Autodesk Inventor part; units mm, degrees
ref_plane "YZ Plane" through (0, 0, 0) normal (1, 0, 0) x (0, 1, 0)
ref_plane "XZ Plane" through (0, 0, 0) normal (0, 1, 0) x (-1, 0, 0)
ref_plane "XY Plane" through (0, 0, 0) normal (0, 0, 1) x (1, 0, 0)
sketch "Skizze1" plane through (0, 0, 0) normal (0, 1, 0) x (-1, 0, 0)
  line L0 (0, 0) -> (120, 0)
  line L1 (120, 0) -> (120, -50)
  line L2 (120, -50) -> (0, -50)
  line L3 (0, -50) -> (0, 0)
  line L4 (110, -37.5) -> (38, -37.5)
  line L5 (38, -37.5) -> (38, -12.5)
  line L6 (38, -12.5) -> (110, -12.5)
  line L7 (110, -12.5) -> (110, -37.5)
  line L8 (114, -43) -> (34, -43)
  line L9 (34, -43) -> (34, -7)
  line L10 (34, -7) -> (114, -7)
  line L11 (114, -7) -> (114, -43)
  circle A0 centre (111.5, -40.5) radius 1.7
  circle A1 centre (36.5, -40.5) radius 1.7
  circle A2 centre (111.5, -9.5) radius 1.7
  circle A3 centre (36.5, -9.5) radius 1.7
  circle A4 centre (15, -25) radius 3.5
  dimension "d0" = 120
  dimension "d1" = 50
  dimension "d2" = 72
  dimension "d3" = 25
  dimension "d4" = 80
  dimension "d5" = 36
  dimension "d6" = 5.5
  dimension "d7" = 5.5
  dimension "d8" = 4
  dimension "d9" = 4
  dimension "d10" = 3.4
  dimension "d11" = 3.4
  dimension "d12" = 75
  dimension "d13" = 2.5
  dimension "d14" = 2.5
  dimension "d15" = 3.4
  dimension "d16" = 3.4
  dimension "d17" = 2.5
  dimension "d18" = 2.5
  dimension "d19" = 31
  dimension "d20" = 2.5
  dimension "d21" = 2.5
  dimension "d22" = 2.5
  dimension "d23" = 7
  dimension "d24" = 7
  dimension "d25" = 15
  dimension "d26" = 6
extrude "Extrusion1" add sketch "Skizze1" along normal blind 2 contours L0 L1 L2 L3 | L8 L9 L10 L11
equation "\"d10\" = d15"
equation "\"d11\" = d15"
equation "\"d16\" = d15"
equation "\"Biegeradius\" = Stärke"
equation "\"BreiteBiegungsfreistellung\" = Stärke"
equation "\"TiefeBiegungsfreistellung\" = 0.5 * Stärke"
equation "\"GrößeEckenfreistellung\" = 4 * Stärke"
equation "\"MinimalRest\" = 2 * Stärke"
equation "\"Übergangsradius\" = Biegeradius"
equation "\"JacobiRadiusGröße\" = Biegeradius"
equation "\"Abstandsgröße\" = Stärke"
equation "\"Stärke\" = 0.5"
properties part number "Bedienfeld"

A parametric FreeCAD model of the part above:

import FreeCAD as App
import Part
import Sketcher

V = App.Vector
Q = App.Units.Quantity


def add_polygon(sketch, points):
    """Adds a closed chain of lines whose ends are joined by coincident constraints."""
    first, n = sketch.GeometryCount, len(points)
    for a, b in zip(points, points[1:] + points[:1]):
        sketch.addGeometry(Part.LineSegment(App.Vector(*a, 0), App.Vector(*b, 0)), False)
    for i in range(n):
        sketch.addConstraint(Sketcher.Constraint("Coincident", first + i, 2, first + (i + 1) % n, 1))

doc = App.newDocument("Part")
body = doc.addObject("PartDesign::Body", "Body")

# Sketch on XZ plane
sketch1 = doc.addObject("Sketcher::SketchObject", "Sketch")
body.addObject(sketch1)
sketch1.AttachmentSupport = (doc.XZ_Plane, [""])
sketch1.MapMode = "FlatFace"
add_polygon(sketch1, [(-120, 0), (0, 0), (0, -50), (-120, -50)])  # lines 0-3
sketch1.addGeometry(Part.Circle(V(-15, -25, 0), V(0, 0, 1), 3.5), False)  # 4
add_polygon(sketch1, [(-38, -12.5), (-110, -12.5), (-110, -37.5), (-38, -37.5)])  # lines 5-8
sketch1.addGeometry(Part.Circle(V(-111.5, -9.5, 0), V(0, 0, 1), 1.7), False)  # 9
sketch1.addGeometry(Part.Circle(V(-36.5, -40.5, 0), V(0, 0, 1), 1.7), False)  # 10
sketch1.addGeometry(Part.Circle(V(-111.5, -40.5, 0), V(0, 0, 1), 1.7), False)  # 11
sketch1.addGeometry(Part.Circle(V(-36.5, -9.5, 0), V(0, 0, 1), 1.7), False)  # 12
sketch1.addConstraint([
    Sketcher.Constraint("Horizontal", 0),
    Sketcher.Constraint("Vertical", 1),
    Sketcher.Constraint("Horizontal", 2),
    Sketcher.Constraint("Vertical", 3),
    Sketcher.Constraint("Horizontal", 5),
    Sketcher.Constraint("Vertical", 6),
    Sketcher.Constraint("Horizontal", 7),
    Sketcher.Constraint("Vertical", 8),
    Sketcher.Constraint("Coincident", 0, 2, -1, 1),
    Sketcher.Constraint("Equal", 9, 10),
    Sketcher.Constraint("Equal", 10, 11),
    Sketcher.Constraint("Equal", 11, 12),
    Sketcher.Constraint("Horizontal", 10, 3, 11, 3),
    Sketcher.Constraint("Horizontal", 9, 3, 12, 3),
    Sketcher.Constraint("Vertical", 9, 3, 11, 3),
    Sketcher.Constraint("Vertical", 10, 3, 12, 3),
    Sketcher.Constraint("Diameter", 4, Q("7 mm")),
    Sketcher.Constraint("Diameter", 9, Q("3.4 mm")),
    Sketcher.Constraint("DistanceX", 0, 1, 0, 2, Q("120 mm")),
    Sketcher.Constraint("DistanceX", 5, 2, 5, 1, Q("72 mm")),
    Sketcher.Constraint("DistanceY", 1, 2, 1, 1, Q("50 mm")),
    Sketcher.Constraint("DistanceY", 6, 2, 6, 1, Q("25 mm")),
    Sketcher.Constraint("DistanceX", 4, 3, -1, 1, Q("15 mm")),
    Sketcher.Constraint("DistanceY", 4, 3, -1, 1, Q("25 mm")),
    Sketcher.Constraint("DistanceX", 9, 3, 10, 3, Q("75 mm")),
    Sketcher.Constraint("DistanceY", 10, 3, 9, 3, Q("31 mm")),
    Sketcher.Constraint("DistanceX", 5, 2, -1, 1, Q("110 mm")),
    Sketcher.Constraint("DistanceY", 5, 2, 9, 3, Q("3 mm")),
    Sketcher.Constraint("DistanceX", 9, 3, -1, 1, Q("111.5 mm")),
    Sketcher.Constraint("DistanceY", 9, 3, -1, 1, Q("9.5 mm")),
])
pad1 = doc.addObject("PartDesign::Pad", "Pad")
body.addObject(pad1)
pad1.Profile = sketch1
pad1.Length = 2
pad1.Reversed = True

doc.recompute()
